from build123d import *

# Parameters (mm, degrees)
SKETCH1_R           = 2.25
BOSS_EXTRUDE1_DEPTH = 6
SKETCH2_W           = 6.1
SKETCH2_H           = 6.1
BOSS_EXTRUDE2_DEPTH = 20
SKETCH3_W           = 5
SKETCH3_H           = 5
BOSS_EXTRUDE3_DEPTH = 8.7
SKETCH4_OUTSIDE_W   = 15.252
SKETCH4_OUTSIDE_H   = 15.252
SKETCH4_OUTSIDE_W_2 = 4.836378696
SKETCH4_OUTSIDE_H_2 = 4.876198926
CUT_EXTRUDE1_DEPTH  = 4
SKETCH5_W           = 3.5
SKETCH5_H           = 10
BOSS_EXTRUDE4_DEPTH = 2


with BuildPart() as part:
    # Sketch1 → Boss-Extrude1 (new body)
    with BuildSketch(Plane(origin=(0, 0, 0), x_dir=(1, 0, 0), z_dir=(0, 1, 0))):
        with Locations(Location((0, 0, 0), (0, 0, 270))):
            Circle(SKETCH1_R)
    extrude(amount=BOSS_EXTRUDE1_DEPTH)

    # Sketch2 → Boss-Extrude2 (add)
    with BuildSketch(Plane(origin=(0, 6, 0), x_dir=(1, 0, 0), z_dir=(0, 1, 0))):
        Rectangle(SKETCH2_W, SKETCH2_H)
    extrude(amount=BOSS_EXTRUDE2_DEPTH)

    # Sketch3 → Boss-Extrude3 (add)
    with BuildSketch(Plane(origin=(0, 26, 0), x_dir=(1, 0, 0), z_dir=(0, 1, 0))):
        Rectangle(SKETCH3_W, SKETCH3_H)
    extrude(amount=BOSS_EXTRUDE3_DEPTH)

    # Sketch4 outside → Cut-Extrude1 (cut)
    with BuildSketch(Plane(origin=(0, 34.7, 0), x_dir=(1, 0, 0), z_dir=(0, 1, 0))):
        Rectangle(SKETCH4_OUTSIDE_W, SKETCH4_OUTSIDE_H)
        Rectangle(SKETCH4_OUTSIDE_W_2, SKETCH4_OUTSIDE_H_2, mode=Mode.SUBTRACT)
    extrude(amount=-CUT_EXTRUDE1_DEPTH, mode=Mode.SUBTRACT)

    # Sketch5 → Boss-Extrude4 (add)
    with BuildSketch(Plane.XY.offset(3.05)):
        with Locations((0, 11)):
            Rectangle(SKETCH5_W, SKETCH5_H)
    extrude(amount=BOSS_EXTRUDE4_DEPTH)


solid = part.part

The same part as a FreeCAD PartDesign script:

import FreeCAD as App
import Part
import Sketcher


def add_polygon(sketch, points):
    """Adds a closed chain of lines whose ends are joined by coincident constraints."""
    first, n = sketch.GeometryCount, len(points)
    for a, b in zip(points, points[1:] + points[:1]):
        sketch.addGeometry(Part.LineSegment(App.Vector(*a, 0), App.Vector(*b, 0)), False)
    for i in range(n):
        sketch.addConstraint(Sketcher.Constraint("Coincident", first + i, 2, first + (i + 1) % n, 1))

doc = App.newDocument("Part")
body = doc.addObject("PartDesign::Body", "Body")

# Sketch on XZ plane
sketch1 = body.newObject("Sketcher::SketchObject", "Sketch")
sketch1.AttachmentSupport = (doc.getObject("XZ_Plane"), [""])
sketch1.MapMode = "FlatFace"
sketch1.addGeometry(Part.Circle(App.Vector(0, 0, 0), App.Vector(0, 0, 1), 2.2), False)
sketch1.addConstraint(Sketcher.Constraint("Coincident", 0, 3, -1, 1))
sketch1.addConstraint(Sketcher.Constraint("Diameter", 0, 4.5))
pad1 = body.newObject("PartDesign::Pad", "Pad")
pad1.Profile = sketch1
pad1.Length = 6
pad1.Reversed = True

# Sketch on XZ plane
sketch2 = body.newObject("Sketcher::SketchObject", "Sketch001")
sketch2.AttachmentSupport = (doc.getObject("XZ_Plane"), [""])
sketch2.MapMode = "FlatFace"
sketch2.AttachmentOffset = App.Placement(App.Vector(0, 0, -6), App.Rotation())
add_polygon(sketch2, [(-3, -3), (-3, 3), (3, 3), (3, -3)])  # lines 0-3
sketch2.addConstraint(Sketcher.Constraint("Vertical", 0))
sketch2.addConstraint(Sketcher.Constraint("Horizontal", 1))
sketch2.addConstraint(Sketcher.Constraint("Vertical", 2))
sketch2.addConstraint(Sketcher.Constraint("Horizontal", 3))
sketch2.addConstraint(Sketcher.Constraint("Symmetric", 0, 2, 2, 2, -1, 1))
sketch2.addConstraint(Sketcher.Constraint("Equal", 3, 0))
sketch2.addConstraint(Sketcher.Constraint("DistanceX", 1, 1, 1, 2, 6.1))
pad2 = body.newObject("PartDesign::Pad", "Pad001")
pad2.Profile = sketch2
pad2.Length = 20
pad2.Reversed = True

# Sketch on XZ plane
sketch3 = body.newObject("Sketcher::SketchObject", "Sketch002")
sketch3.AttachmentSupport = (doc.getObject("XZ_Plane"), [""])
sketch3.MapMode = "FlatFace"
sketch3.AttachmentOffset = App.Placement(App.Vector(0, 0, -26), App.Rotation())
add_polygon(sketch3, [(-2, -2), (-2, 2), (2, 2), (2, -2)])  # lines 0-3
sketch3.addConstraint(Sketcher.Constraint("Vertical", 0))
sketch3.addConstraint(Sketcher.Constraint("Horizontal", 1))
sketch3.addConstraint(Sketcher.Constraint("Vertical", 2))
sketch3.addConstraint(Sketcher.Constraint("Horizontal", 3))
sketch3.addConstraint(Sketcher.Constraint("Symmetric", 0, 2, 2, 2, -1, 1))
sketch3.addConstraint(Sketcher.Constraint("Equal", 3, 0))
sketch3.addConstraint(Sketcher.Constraint("DistanceX", 1, 1, 1, 2, 5.0))
pad3 = body.newObject("PartDesign::Pad", "Pad002")
pad3.Profile = sketch3
pad3.Length = 8.7
pad3.Reversed = True

# Sketch on XZ plane
sketch4 = body.newObject("Sketcher::SketchObject", "Sketch003")
sketch4.AttachmentSupport = (doc.getObject("XZ_Plane"), [""])
sketch4.MapMode = "FlatFace"
sketch4.AttachmentOffset = App.Placement(App.Vector(0, 0, -34.7), App.Rotation())
add_polygon(sketch4, [(-7.6, -7.6), (-7.6, 7.6), (7.6, 7.6), (7.6, -7.6)])  # lines 0-3
add_polygon(sketch4, [(2.4, 2.4), (-2.4, 2.4), (-2.4, -2.4), (2.4, -2.4)])  # lines 4-7
sketch4.addConstraint(Sketcher.Constraint("Vertical", 0))
sketch4.addConstraint(Sketcher.Constraint("Horizontal", 1))
sketch4.addConstraint(Sketcher.Constraint("Vertical", 2))
sketch4.addConstraint(Sketcher.Constraint("Horizontal", 3))
sketch4.addConstraint(Sketcher.Constraint("Horizontal", 4))
sketch4.addConstraint(Sketcher.Constraint("Vertical", 5))
sketch4.addConstraint(Sketcher.Constraint("Horizontal", 6))
sketch4.addConstraint(Sketcher.Constraint("Vertical", 7))
sketch4.addConstraint(Sketcher.Constraint("Symmetric", 0, 2, 2, 2, -1, 1))
sketch4.addConstraint(Sketcher.Constraint("Symmetric", 4, 2, 6, 2, -1, 1))
sketch4.addConstraint(Sketcher.Constraint("Equal", 3, 0))
sketch4.addConstraint(Sketcher.Constraint("DistanceX", 1, 1, 1, 2, 15.252))
sketch4.addConstraint(Sketcher.Constraint("DistanceY", 5, 2, 5, 1, 4.876199))
sketch4.addConstraint(Sketcher.Constraint("DistanceX", 4, 2, 4, 1, 4.836379))
pocket1 = body.newObject("PartDesign::Pocket", "Pocket")
pocket1.Profile = sketch4
pocket1.Length = 4
pocket1.Reversed = True

# Sketch on XY plane
sketch5 = body.newObject("Sketcher::SketchObject", "Sketch004")
sketch5.AttachmentSupport = (doc.getObject("XY_Plane"), [""])
sketch5.MapMode = "FlatFace"
sketch5.AttachmentOffset = App.Placement(App.Vector(0, 0, 3.05), App.Rotation())
add_polygon(sketch5, [(-1.8, 16), (-1.8, 6), (1.8, 6), (1.8, 16)])  # lines 0-3
sketch5.addConstraint(Sketcher.Constraint("Vertical", 0))
sketch5.addConstraint(Sketcher.Constraint("Horizontal", 1))
sketch5.addConstraint(Sketcher.Constraint("Vertical", 2))
sketch5.addConstraint(Sketcher.Constraint("Horizontal", 3))
sketch5.addConstraint(Sketcher.Constraint("DistanceY", 0, 2, 0, 1, 10.0))
sketch5.addConstraint(Sketcher.Constraint("DistanceX", 1, 1, 1, 2, 3.5))
sketch5.addConstraint(Sketcher.Constraint("DistanceY", -1, 1, 0, 2, 6.0))
sketch5.addConstraint(Sketcher.Constraint("DistanceX", 0, 2, -1, 1, 1.75))
pad4 = body.newObject("PartDesign::Pad", "Pad003")
pad4.Profile = sketch5
pad4.Length = 2

doc.recompute()
